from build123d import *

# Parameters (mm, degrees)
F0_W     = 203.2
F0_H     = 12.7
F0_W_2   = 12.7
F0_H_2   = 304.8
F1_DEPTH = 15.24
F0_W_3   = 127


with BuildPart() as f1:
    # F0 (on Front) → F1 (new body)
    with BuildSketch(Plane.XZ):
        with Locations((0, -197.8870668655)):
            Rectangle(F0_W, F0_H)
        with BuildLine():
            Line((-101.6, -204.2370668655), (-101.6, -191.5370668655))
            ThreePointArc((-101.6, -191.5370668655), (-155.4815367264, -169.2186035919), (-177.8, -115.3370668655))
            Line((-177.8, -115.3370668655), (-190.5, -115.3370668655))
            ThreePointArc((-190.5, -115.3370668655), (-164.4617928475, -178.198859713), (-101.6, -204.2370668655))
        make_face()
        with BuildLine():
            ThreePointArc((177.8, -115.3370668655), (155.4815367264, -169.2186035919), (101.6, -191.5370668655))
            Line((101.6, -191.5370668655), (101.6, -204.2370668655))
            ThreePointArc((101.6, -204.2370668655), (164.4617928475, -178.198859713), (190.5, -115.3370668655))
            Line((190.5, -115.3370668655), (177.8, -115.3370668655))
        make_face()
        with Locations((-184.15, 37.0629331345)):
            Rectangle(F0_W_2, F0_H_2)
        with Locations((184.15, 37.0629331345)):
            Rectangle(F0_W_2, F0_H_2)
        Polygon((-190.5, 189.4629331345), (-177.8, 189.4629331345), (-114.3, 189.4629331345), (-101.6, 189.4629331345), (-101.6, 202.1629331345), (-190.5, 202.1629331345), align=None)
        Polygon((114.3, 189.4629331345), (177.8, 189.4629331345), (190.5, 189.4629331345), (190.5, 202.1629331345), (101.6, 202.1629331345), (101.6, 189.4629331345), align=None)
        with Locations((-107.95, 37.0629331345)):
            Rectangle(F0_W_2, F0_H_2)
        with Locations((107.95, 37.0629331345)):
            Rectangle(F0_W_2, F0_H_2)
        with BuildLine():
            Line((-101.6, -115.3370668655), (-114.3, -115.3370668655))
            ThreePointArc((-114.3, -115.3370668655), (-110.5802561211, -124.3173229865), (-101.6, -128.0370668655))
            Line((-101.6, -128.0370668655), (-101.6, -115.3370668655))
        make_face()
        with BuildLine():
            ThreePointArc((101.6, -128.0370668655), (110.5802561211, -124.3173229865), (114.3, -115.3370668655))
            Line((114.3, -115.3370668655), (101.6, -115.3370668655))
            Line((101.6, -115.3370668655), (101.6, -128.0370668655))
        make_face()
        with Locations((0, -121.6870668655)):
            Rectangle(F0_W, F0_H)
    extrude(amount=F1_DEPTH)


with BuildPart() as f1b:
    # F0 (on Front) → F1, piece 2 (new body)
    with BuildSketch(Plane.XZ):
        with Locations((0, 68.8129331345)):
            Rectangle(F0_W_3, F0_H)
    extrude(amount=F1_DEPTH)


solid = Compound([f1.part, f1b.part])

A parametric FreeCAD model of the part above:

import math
import FreeCAD as App
import Part
import Sketcher

V = App.Vector
Q = App.Units.Quantity

doc = App.newDocument("Part")
body = doc.addObject("PartDesign::Body", "Body")

# Sketch on XZ plane
sketch1 = body.newObject("Sketcher::SketchObject", "Sketch")
sketch1.AttachmentSupport = (doc.getObject("XZ_Plane"), [""])
sketch1.MapMode = "FlatFace"
sketch1.addGeometry(Part.LineSegment(V(-102, -204, 0), V(102, -204, 0)), False)
sketch1.addGeometry(Part.ArcOfCircle(Part.Circle(V(102, -115, 0), V(0, 0, 1), 89), math.radians(-90), math.radians(0)), False)
sketch1.addGeometry(Part.LineSegment(V(190, -115, 0), V(190, 202, 0)), False)
sketch1.addGeometry(Part.LineSegment(V(190, 202, 0), V(102, 202, 0)), False)
sketch1.addGeometry(Part.LineSegment(V(102, 202, 0), V(102, -115, 0)), False)
sketch1.addGeometry(Part.LineSegment(V(102, -115, 0), V(-102, -115, 0)), False)
sketch1.addGeometry(Part.LineSegment(V(-102, -115, 0), V(-102, 202, 0)), False)
sketch1.addGeometry(Part.LineSegment(V(-102, 202, 0), V(-190, 202, 0)), False)
sketch1.addGeometry(Part.LineSegment(V(-190, 202, 0), V(-190, -115, 0)), False)
sketch1.addGeometry(Part.ArcOfCircle(Part.Circle(V(-102, -115, 0), V(0, 0, 1), 89), math.radians(180), math.radians(270)), False)
sketch1.addGeometry(Part.ArcOfCircle(Part.Circle(V(102, -115, 0), V(0, 0, 1), 13), math.radians(-90), math.radians(0)), False)
sketch1.addGeometry(Part.LineSegment(V(114, -115, 0), V(114, 189, 0)), False)
sketch1.addGeometry(Part.LineSegment(V(114, 189, 0), V(178, 189, 0)), False)
sketch1.addGeometry(Part.LineSegment(V(178, 189, 0), V(178, -115, 0)), False)
sketch1.addGeometry(Part.ArcOfCircle(Part.Circle(V(102, -115, 0), V(0, 0, 1), 76), math.radians(-90), math.radians(0)), False)
sketch1.addGeometry(Part.LineSegment(V(102, -192, 0), V(-102, -192, 0)), False)
sketch1.addGeometry(Part.ArcOfCircle(Part.Circle(V(-102, -115, 0), V(0, 0, 1), 76), math.radians(-180), math.radians(-90)), False)
sketch1.addGeometry(Part.LineSegment(V(-178, -115, 0), V(-178, 189, 0)), False)
sketch1.addGeometry(Part.LineSegment(V(-178, 189, 0), V(-114, 189, 0)), False)
sketch1.addGeometry(Part.LineSegment(V(-114, 189, 0), V(-114, -115, 0)), False)
sketch1.addGeometry(Part.ArcOfCircle(Part.Circle(V(-102, -115, 0), V(0, 0, 1), 13), math.radians(-180), math.radians(-90)), False)
sketch1.addGeometry(Part.LineSegment(V(-102, -128, 0), V(102, -128, 0)), False)
sketch1.addConstraint(Sketcher.Constraint("Tangent", 0, 2, 1, 1))
sketch1.addConstraint(Sketcher.Constraint("Tangent", 1, 2, 2, 1))
sketch1.addConstraint(Sketcher.Constraint("Coincident", 2, 2, 3, 1))
sketch1.addConstraint(Sketcher.Constraint("Coincident", 3, 2, 4, 1))
sketch1.addConstraint(Sketcher.Constraint("Coincident", 4, 2, 5, 1))
sketch1.addConstraint(Sketcher.Constraint("Coincident", 5, 2, 6, 1))
sketch1.addConstraint(Sketcher.Constraint("Coincident", 6, 2, 7, 1))
sketch1.addConstraint(Sketcher.Constraint("Coincident", 7, 2, 8, 1))
sketch1.addConstraint(Sketcher.Constraint("Tangent", 8, 2, 9, 1))
sketch1.addConstraint(Sketcher.Constraint("Tangent", 9, 2, 0, 1))
sketch1.addConstraint(Sketcher.Constraint("Tangent", 10, 2, 11, 1))
sketch1.addConstraint(Sketcher.Constraint("Coincident", 11, 2, 12, 1))
sketch1.addConstraint(Sketcher.Constraint("Coincident", 12, 2, 13, 1))
sketch1.addConstraint(Sketcher.Constraint("Tangent", 13, 2, 14, 2))
sketch1.addConstraint(Sketcher.Constraint("Tangent", 14, 1, 15, 1))
sketch1.addConstraint(Sketcher.Constraint("Tangent", 15, 2, 16, 2))
sketch1.addConstraint(Sketcher.Constraint("Tangent", 16, 1, 17, 1))
sketch1.addConstraint(Sketcher.Constraint("Coincident", 17, 2, 18, 1))
sketch1.addConstraint(Sketcher.Constraint("Coincident", 18, 2, 19, 1))
sketch1.addConstraint(Sketcher.Constraint("Tangent", 19, 2, 20, 1))
sketch1.addConstraint(Sketcher.Constraint("Tangent", 20, 2, 21, 1))
sketch1.addConstraint(Sketcher.Constraint("Tangent", 21, 2, 10, 1))
sketch1.addConstraint(Sketcher.Constraint("Horizontal", 0))
sketch1.addConstraint(Sketcher.Constraint("Vertical", 2))
sketch1.addConstraint(Sketcher.Constraint("Horizontal", 3))
sketch1.addConstraint(Sketcher.Constraint("Vertical", 4))
sketch1.addConstraint(Sketcher.Constraint("Horizontal", 5))
sketch1.addConstraint(Sketcher.Constraint("Vertical", 6))
sketch1.addConstraint(Sketcher.Constraint("Horizontal", 7))
sketch1.addConstraint(Sketcher.Constraint("Vertical", 8))
sketch1.addConstraint(Sketcher.Constraint("Vertical", 11))
sketch1.addConstraint(Sketcher.Constraint("Horizontal", 12))
sketch1.addConstraint(Sketcher.Constraint("Vertical", 13))
sketch1.addConstraint(Sketcher.Constraint("Horizontal", 15))
sketch1.addConstraint(Sketcher.Constraint("Vertical", 17))
sketch1.addConstraint(Sketcher.Constraint("Horizontal", 18))
sketch1.addConstraint(Sketcher.Constraint("Vertical", 19))
sketch1.addConstraint(Sketcher.Constraint("Horizontal", 21))
sketch1.addConstraint(Sketcher.Constraint("Coincident", 10, 3, 1, 3))
sketch1.addConstraint(Sketcher.Constraint("Coincident", 14, 3, 1, 3))
sketch1.addConstraint(Sketcher.Constraint("Coincident", 16, 3, 9, 3))
sketch1.addConstraint(Sketcher.Constraint("Coincident", 20, 3, 9, 3))
sketch1.addConstraint(Sketcher.Constraint("Coincident", 4, 2, 1, 3))
sketch1.addConstraint(Sketcher.Constraint("Coincident", 5, 2, 9, 3))
sketch1.addConstraint(Sketcher.Constraint("Symmetric", 3, 2, 6, 2, -2))
sketch1.addConstraint(Sketcher.Constraint("Horizontal", 12, 2, 17, 2))
sketch1.addConstraint(Sketcher.Constraint("Radius", 14, Q("3 in")))
sketch1.addConstraint(Sketcher.Constraint("Radius", 1, Q("3.5 in")))
sketch1.addConstraint(Sketcher.Constraint("Radius", 10, Q("0.5 in")))
sketch1.addConstraint(Sketcher.Constraint("DistanceX", 0, 1, 0, 2, Q("8 in")))
sketch1.addConstraint(Sketcher.Constraint("DistanceY", 11, 1, 11, 2, Q("12 in")))
sketch1.addConstraint(Sketcher.Constraint("DistanceY", 2, 1, 2, 2, Q("12.5 in")))
sketch1.addConstraint(Sketcher.Constraint("DistanceY", 1, 3, -1, 1, 115.337067))
pad1 = body.newObject("PartDesign::Pad", "Pad")
pad1.Profile = sketch1
pad1.Length = Q("0.6 in")
body2 = doc.addObject("PartDesign::Body", "Body001")

# Sketch on XZ plane
sketch2 = body2.newObject("Sketcher::SketchObject", "Sketch001")
sketch2.AttachmentSupport = (doc.getObject("XZ_Plane001"), [""])
sketch2.MapMode = "FlatFace"
sketch2.addGeometry(Part.LineSegment(V(-64, 75, 0), V(-64, 62, 0)), False)
sketch2.addGeometry(Part.LineSegment(V(-64, 62, 0), V(64, 62, 0)), False)
sketch2.addGeometry(Part.LineSegment(V(64, 62, 0), V(64, 75, 0)), False)
sketch2.addGeometry(Part.LineSegment(V(64, 75, 0), V(-64, 75, 0)), False)
sketch2.addConstraint(Sketcher.Constraint("Coincident", 0, 2, 1, 1))
sketch2.addConstraint(Sketcher.Constraint("Coincident", 1, 2, 2, 1))
sketch2.addConstraint(Sketcher.Constraint("Coincident", 2, 2, 3, 1))
sketch2.addConstraint(Sketcher.Constraint("Coincident", 3, 2, 0, 1))
sketch2.addConstraint(Sketcher.Constraint("Vertical", 0))
sketch2.addConstraint(Sketcher.Constraint("Horizontal", 1))
sketch2.addConstraint(Sketcher.Constraint("Vertical", 2))
sketch2.addConstraint(Sketcher.Constraint("Horizontal", 3))
sketch2.addConstraint(Sketcher.Constraint("DistanceX", 1, 1, 1, 2, Q("5 in")))
sketch2.addConstraint(Sketcher.Constraint("DistanceY", 0, 2, 0, 1, Q("0.5 in")))
sketch2.addConstraint(Sketcher.Constraint("DistanceX", 0, 2, -1, 1, Q("2.5 in")))
sketch2.addConstraint(Sketcher.Constraint("DistanceY", -1, 1, 0, 2, 62.462933))
pad2 = body2.newObject("PartDesign::Pad", "Pad001")
pad2.Profile = sketch2
pad2.Length = Q("0.6 in")

doc.recompute()
